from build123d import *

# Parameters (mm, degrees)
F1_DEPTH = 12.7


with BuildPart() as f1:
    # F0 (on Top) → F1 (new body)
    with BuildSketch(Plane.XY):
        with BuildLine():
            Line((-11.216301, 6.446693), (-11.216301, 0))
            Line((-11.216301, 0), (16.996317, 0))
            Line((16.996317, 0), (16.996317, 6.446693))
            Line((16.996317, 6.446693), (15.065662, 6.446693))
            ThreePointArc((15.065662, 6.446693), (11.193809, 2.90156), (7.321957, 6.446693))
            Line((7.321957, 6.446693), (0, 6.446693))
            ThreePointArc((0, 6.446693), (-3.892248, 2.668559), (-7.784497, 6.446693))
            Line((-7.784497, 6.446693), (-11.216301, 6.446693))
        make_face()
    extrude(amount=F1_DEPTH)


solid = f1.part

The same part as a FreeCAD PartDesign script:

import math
import FreeCAD as App
import Part
import Sketcher
Q = App.Units.Quantity

doc = App.newDocument("Part")
params = doc.addObject("Spreadsheet::Sheet", "Params")
for row, (alias, value) in enumerate([
    ("pad1_length", "0.5 in"),
], start=1):
    params.set(f"A{row}", alias)
    params.set(f"B{row}", "=" + value)
    params.setAlias(f"B{row}", alias)

body = doc.addObject("PartDesign::Body", "Body")

sketch1 = body.newObject("Sketcher::SketchObject", "Sketch")
sketch1.AttachmentSupport = (doc.getObject("XY_Plane"), [""])
sketch1.MapMode = "FlatFace"
sketch1.addGeometry(Part.LineSegment(App.Vector(-11.216301, 6.446693, 0), App.Vector(-11.216301, 0, 0)), False)
sketch1.addGeometry(Part.LineSegment(App.Vector(-11.216301, 0, 0), App.Vector(16.996317, 0, 0)), False)
sketch1.addGeometry(Part.LineSegment(App.Vector(16.996317, 0, 0), App.Vector(16.996317, 6.446693, 0)), False)
sketch1.addGeometry(Part.LineSegment(App.Vector(16.996317, 6.446693, 0), App.Vector(15.065662, 6.446693, 0)), False)
sketch1.addGeometry(Part.ArcOfCircle(Part.Circle(App.Vector(11.19381, 6.788468, 0), App.Vector(0, 0, 1), 3.886908), math.radians(-174.955483), math.radians(-5.044517)), False)
sketch1.addGeometry(Part.LineSegment(App.Vector(7.321957, 6.446693, 0), App.Vector(0, 6.446693, 0)), False)
sketch1.addGeometry(Part.ArcOfCircle(Part.Circle(App.Vector(-3.892248, 6.562531, 0), App.Vector(0, 0, 1), 3.893972), math.radians(-178.295314), math.radians(-1.704686)), False)
sketch1.addGeometry(Part.LineSegment(App.Vector(-7.784497, 6.446693, 0), App.Vector(-11.216301, 6.446693, 0)), False)
sketch1.addConstraint(Sketcher.Constraint("Coincident", 0, 2, 1, 1))
sketch1.addConstraint(Sketcher.Constraint("Coincident", 1, 2, 2, 1))
sketch1.addConstraint(Sketcher.Constraint("Coincident", 2, 2, 3, 1))
sketch1.addConstraint(Sketcher.Constraint("Coincident", 3, 2, 4, 2))
sketch1.addConstraint(Sketcher.Constraint("Coincident", 4, 1, 5, 1))
sketch1.addConstraint(Sketcher.Constraint("Coincident", 5, 2, 6, 2))
sketch1.addConstraint(Sketcher.Constraint("Coincident", 6, 1, 7, 1))
sketch1.addConstraint(Sketcher.Constraint("Coincident", 7, 2, 0, 1))
sketch1.addConstraint(Sketcher.Constraint("Vertical", 0))
sketch1.addConstraint(Sketcher.Constraint("Horizontal", 1))
sketch1.addConstraint(Sketcher.Constraint("Vertical", 2))
sketch1.addConstraint(Sketcher.Constraint("Horizontal", 3))
sketch1.addConstraint(Sketcher.Constraint("Horizontal", 5))
sketch1.addConstraint(Sketcher.Constraint("Horizontal", 7))
sketch1.addConstraint(Sketcher.Constraint("PointOnObject", 0, 2, -1))
sketch1.addConstraint(Sketcher.Constraint("PointOnObject", 5, 2, -2))
sketch1.addConstraint(Sketcher.Constraint("Horizontal", 3, 2, 4, 1))
sketch1.addConstraint(Sketcher.Constraint("Horizontal", 5, 2, 6, 1))
sketch1.addConstraint(Sketcher.Constraint("Radius", 6, Q("3.893972 mm")))
sketch1.addConstraint(Sketcher.Constraint("Radius", 4, Q("3.886908 mm")))
sketch1.addConstraint(Sketcher.Constraint("DistanceX", 0, 2, -1, 1, Q("11.216301 mm")))
sketch1.addConstraint(Sketcher.Constraint("DistanceX", 1, 1, 1, 2, Q("28.212618 mm")))
sketch1.addConstraint(Sketcher.Constraint("DistanceX", 3, 2, 3, 1, Q("1.930655 mm")))
sketch1.addConstraint(Sketcher.Constraint("DistanceX", 5, 2, 5, 1, Q("7.321957 mm")))
sketch1.addConstraint(Sketcher.Constraint("DistanceX", 7, 2, 7, 1, Q("3.431804 mm")))
sketch1.addConstraint(Sketcher.Constraint("DistanceY", 0, 2, 0, 1, Q("6.446693 mm")))
pad1 = body.newObject("PartDesign::Pad", "Pad")
pad1.Profile = sketch1
pad1.setExpression("Length", "Params.pad1_length")

doc.recompute()
